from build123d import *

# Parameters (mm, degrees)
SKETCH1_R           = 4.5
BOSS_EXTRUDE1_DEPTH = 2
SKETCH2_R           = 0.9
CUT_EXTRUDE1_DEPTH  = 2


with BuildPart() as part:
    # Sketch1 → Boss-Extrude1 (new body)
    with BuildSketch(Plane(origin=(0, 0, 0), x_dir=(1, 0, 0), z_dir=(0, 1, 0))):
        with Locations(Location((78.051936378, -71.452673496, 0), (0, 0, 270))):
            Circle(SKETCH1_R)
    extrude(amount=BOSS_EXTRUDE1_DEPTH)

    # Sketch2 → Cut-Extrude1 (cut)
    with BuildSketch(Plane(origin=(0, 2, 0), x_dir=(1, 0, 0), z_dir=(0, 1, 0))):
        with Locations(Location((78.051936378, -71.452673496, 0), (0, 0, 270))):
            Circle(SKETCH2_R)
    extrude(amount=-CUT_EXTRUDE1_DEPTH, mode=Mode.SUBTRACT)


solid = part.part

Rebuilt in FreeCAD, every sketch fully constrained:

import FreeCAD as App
import Part
import Sketcher
Q = App.Units.Quantity

doc = App.newDocument("Part")
params = doc.addObject("Spreadsheet::Sheet", "Params")
for row, (alias, value) in enumerate([
    ("sketch1_diameter", "9 mm"),
    ("pad1_length", "2 mm"),
    ("sketch2_diameter", "1.8 mm"),
    ("pocket1_length", "2 mm"),
], start=1):
    params.set(f"A{row}", alias)
    params.set(f"B{row}", "=" + value)
    params.setAlias(f"B{row}", alias)

body = doc.addObject("PartDesign::Body", "Body")

# Sketch on XZ plane
sketch1 = body.newObject("Sketcher::SketchObject", "Sketch")
sketch1.AttachmentSupport = (doc.getObject("XZ_Plane"), [""])
sketch1.MapMode = "FlatFace"
sketch1.addGeometry(Part.Circle(App.Vector(78.1, 71.5, 0), App.Vector(0, 0, 1), 4.5), False)
sketch1.addConstraint([
    Sketcher.Constraint("Diameter", 0, Q("9 mm")),
    Sketcher.Constraint("DistanceX", -1, 1, 0, 3, Q("78.051936 mm")),
    Sketcher.Constraint("DistanceY", -1, 1, 0, 3, Q("71.452673 mm")),
])
sketch1.setExpression("Constraints[0]", "Params.sketch1_diameter")
pad1 = body.newObject("PartDesign::Pad", "Pad")
pad1.Profile = sketch1
pad1.setExpression("Length", "Params.pad1_length")
pad1.Reversed = True

# Sketch on XZ plane
sketch2 = body.newObject("Sketcher::SketchObject", "Sketch001")
sketch2.AttachmentSupport = (doc.getObject("XZ_Plane"), [""])
sketch2.MapMode = "FlatFace"
sketch2.AttachmentOffset = App.Placement(App.Vector(0, 0, -2), App.Rotation())
sketch2.addGeometry(Part.Circle(App.Vector(78.1, 71.5, 0), App.Vector(0, 0, 1), 0.9), False)
sketch2.addConstraint([
    Sketcher.Constraint("Diameter", 0, Q("1.8 mm")),
    Sketcher.Constraint("DistanceX", -1, 1, 0, 3, Q("78.051936 mm")),
    Sketcher.Constraint("DistanceY", -1, 1, 0, 3, Q("71.452673 mm")),
])
sketch2.setExpression("Constraints[0]", "Params.sketch2_diameter")
pocket1 = body.newObject("PartDesign::Pocket", "Pocket")
pocket1.Profile = sketch2
pocket1.setExpression("Length", "Params.pocket1_length")
pocket1.Reversed = True

doc.recompute()
